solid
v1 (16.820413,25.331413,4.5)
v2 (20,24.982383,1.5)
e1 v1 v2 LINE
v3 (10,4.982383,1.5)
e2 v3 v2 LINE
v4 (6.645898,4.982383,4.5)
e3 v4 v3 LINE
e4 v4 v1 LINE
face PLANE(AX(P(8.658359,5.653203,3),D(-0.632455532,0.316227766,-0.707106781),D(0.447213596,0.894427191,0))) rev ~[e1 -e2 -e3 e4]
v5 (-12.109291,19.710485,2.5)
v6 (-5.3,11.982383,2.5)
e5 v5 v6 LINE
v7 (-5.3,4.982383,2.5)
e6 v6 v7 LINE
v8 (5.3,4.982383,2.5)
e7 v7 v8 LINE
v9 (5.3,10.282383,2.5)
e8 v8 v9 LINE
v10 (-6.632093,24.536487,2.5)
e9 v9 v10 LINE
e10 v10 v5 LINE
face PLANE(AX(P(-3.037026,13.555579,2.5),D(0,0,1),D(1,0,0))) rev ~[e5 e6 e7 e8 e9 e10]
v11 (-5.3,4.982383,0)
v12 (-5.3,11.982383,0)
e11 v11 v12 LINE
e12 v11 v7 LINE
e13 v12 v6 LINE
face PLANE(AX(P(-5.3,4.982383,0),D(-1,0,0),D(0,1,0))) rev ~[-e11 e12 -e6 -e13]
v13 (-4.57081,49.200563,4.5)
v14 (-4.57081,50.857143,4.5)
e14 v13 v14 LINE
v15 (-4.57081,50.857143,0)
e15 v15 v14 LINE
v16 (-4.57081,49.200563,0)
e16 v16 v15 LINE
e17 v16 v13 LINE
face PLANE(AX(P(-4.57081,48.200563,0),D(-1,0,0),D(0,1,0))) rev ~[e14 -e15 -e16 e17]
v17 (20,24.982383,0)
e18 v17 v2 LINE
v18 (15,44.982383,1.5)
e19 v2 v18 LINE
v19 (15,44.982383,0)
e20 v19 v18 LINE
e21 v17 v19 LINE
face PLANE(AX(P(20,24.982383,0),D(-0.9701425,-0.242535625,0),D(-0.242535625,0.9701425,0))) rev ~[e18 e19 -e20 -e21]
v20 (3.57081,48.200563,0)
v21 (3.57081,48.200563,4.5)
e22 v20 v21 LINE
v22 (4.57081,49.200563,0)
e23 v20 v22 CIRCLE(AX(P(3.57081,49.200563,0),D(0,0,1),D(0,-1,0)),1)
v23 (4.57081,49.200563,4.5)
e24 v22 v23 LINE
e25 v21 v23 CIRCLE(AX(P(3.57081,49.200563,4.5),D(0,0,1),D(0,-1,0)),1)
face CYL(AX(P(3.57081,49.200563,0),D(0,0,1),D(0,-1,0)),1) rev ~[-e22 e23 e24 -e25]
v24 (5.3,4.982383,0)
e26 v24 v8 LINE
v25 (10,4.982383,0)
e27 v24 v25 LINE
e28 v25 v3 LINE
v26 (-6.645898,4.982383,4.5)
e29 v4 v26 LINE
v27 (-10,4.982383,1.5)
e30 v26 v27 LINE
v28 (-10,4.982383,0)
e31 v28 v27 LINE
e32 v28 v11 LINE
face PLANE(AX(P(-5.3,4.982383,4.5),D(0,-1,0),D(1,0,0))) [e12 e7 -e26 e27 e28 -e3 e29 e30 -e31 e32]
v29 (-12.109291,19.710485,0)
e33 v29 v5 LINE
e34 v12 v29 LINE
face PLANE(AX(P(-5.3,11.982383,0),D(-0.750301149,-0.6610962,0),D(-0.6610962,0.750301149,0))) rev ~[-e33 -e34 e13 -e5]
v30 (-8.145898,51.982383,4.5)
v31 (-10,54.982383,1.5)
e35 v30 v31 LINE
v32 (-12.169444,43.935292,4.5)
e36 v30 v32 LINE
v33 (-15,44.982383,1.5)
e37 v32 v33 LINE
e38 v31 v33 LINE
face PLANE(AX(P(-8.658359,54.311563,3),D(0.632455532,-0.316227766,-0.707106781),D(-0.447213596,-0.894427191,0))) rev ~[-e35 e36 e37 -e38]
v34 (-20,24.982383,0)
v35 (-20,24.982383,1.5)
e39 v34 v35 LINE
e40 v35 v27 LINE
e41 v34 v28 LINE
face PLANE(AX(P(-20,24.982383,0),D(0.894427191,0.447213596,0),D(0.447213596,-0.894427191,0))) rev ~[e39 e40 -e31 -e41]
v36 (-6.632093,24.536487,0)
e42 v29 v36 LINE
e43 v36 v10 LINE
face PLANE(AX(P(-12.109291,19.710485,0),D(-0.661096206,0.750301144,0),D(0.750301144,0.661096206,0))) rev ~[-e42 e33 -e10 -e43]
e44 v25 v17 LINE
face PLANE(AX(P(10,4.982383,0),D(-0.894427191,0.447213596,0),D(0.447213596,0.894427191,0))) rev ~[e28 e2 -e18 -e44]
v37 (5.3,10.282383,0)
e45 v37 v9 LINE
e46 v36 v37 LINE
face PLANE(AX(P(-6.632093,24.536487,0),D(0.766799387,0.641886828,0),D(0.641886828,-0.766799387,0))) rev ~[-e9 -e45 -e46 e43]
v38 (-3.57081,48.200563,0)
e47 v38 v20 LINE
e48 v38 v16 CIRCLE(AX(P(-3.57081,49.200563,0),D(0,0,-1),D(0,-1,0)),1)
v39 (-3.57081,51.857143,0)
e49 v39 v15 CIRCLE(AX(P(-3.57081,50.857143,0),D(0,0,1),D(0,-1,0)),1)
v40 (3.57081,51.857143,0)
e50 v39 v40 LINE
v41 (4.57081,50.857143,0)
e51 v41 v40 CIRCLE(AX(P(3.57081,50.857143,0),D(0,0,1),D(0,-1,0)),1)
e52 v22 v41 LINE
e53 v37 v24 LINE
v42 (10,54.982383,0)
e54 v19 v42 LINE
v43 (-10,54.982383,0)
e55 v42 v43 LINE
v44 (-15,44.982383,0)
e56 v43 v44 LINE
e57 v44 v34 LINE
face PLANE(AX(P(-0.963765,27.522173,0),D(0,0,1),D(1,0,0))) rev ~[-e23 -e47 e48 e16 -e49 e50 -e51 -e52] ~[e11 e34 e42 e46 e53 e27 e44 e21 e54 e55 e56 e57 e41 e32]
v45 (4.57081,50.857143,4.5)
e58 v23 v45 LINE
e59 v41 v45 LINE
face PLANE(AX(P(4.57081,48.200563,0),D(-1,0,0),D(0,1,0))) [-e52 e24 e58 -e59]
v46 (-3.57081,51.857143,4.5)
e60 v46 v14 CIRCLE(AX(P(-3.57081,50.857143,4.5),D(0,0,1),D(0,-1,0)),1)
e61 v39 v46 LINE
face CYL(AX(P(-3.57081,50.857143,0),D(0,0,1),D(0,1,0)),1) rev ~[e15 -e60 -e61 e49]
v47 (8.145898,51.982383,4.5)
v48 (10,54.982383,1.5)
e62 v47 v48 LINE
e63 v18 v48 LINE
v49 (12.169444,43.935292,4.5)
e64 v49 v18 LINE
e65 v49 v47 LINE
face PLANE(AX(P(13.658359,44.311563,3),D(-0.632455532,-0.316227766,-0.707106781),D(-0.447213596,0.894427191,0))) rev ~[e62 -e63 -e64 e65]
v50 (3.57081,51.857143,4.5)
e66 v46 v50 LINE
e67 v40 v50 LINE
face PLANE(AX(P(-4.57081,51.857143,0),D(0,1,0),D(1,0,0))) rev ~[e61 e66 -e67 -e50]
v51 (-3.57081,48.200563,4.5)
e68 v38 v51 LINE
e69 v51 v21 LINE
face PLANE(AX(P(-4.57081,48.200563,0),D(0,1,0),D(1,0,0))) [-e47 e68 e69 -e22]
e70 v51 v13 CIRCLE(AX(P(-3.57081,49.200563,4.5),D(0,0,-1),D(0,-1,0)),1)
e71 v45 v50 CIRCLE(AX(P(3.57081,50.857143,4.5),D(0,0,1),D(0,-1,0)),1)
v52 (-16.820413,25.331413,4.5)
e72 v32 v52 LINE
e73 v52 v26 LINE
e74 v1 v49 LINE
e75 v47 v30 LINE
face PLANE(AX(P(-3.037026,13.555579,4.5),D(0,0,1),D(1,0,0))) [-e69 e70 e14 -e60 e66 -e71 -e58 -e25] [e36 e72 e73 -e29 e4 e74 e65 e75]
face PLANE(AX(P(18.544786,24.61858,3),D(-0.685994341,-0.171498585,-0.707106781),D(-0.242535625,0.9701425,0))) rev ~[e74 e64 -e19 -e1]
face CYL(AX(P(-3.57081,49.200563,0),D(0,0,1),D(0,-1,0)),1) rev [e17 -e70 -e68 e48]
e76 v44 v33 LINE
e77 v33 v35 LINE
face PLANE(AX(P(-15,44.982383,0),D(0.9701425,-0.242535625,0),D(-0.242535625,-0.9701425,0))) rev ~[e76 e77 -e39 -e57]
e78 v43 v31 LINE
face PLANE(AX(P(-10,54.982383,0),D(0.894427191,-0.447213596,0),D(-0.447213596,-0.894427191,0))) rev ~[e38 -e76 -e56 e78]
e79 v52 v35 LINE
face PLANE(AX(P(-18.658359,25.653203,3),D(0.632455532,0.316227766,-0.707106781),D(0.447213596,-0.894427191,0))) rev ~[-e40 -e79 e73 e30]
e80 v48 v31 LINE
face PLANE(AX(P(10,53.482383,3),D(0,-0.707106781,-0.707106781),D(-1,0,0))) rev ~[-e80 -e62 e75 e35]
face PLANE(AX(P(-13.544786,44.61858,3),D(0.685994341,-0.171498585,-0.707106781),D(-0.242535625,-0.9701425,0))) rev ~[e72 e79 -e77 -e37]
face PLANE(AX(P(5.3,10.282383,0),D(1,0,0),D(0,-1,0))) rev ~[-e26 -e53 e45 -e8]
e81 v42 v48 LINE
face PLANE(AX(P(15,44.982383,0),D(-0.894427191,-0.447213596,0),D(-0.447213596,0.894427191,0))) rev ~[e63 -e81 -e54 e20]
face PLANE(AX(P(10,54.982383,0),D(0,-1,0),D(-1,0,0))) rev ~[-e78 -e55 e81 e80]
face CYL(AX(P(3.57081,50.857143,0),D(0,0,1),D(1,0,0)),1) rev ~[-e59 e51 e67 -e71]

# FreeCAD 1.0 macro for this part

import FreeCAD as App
import Part
import Sketcher
Q = App.Units.Quantity


def edges_at(feature, points):
    """Names of the edges that pass closest to the given points."""
    edges = feature.Shape.Edges
    near = lambda p: min(range(len(edges)), key=lambda i: edges[i].distToShape(Part.Vertex(*p))[0])
    return sorted({f"Edge{near(p) + 1}" for p in points})


def add_polygon(sketch, points):
    """Adds a closed chain of lines whose ends are joined by coincident constraints."""
    first, n = sketch.GeometryCount, len(points)
    for a, b in zip(points, points[1:] + points[:1]):
        sketch.addGeometry(Part.LineSegment(App.Vector(*a, 0), App.Vector(*b, 0)), False)
    for i in range(n):
        sketch.addConstraint(Sketcher.Constraint("Coincident", first + i, 2, first + (i + 1) % n, 1))

doc = App.newDocument("Part")
body = doc.addObject("PartDesign::Body", "Body")

sketch1 = doc.addObject("Sketcher::SketchObject", "Sketch")
body.addObject(sketch1)
sketch1.AttachmentSupport = (doc.XY_Plane, [""])
sketch1.MapMode = "FlatFace"
add_polygon(sketch1, [(10, 54.982383), (-10, 54.982383), (-15, 44.982383), (-20, 24.982383), (-10, 4.982383), (-5.3, 4.982383), (-5.3, 11.982383), (-12.109291, 19.710485), (-6.632093, 24.536487), (5.3, 10.282383), (5.3, 4.982383), (10, 4.982383), (20, 24.982383), (15, 44.982383)])
add_polygon(sketch1, [(4.57081, 48.200563), (-4.57081, 48.200563), (-4.57081, 51.857143), (4.57081, 51.857143)])
sketch1.addConstraint([
    Sketcher.Constraint("Horizontal", 0),
    Sketcher.Constraint("Horizontal", 4),
    Sketcher.Constraint("Vertical", 5),
    Sketcher.Constraint("Vertical", 9),
    Sketcher.Constraint("Horizontal", 10),
    Sketcher.Constraint("Horizontal", 14),
    Sketcher.Constraint("Vertical", 15),
    Sketcher.Constraint("Horizontal", 16),
    Sketcher.Constraint("Vertical", 17),
    Sketcher.Constraint("Symmetric", 4, 2, 9, 2, -2),
    Sketcher.Constraint("Symmetric", 2, 2, 11, 2, -2),
    Sketcher.Constraint("Symmetric", 1, 2, 12, 2, -2),
    Sketcher.Constraint("Perpendicular", 6, 7),
    Sketcher.Constraint("Parallel", 1, 11),
    Sketcher.Constraint("Parallel", 3, 13),
    Sketcher.Constraint("Vertical", 0, 2, 3, 2),
    Sketcher.Constraint("Vertical", 10, 2, 13, 2),
    Sketcher.Constraint("DistanceX", 0, 2, 0, 1, Q("20 mm")),
    Sketcher.Constraint("DistanceY", 5, 1, 5, 2, Q("7 mm")),
    Sketcher.Constraint("DistanceX", 4, 1, 4, 2, Q("4.7 mm")),
    Sketcher.Constraint("DistanceY", 9, 2, 9, 1, Q("5.3 mm")),
    Sketcher.Constraint("DistanceX", 1, 2, -1, 1, Q("15 mm")),
    Sketcher.Constraint("DistanceX", 2, 2, -1, 1, Q("20 mm")),
    Sketcher.Constraint("DistanceY", 1, 2, 0, 2, Q("10 mm")),
    Sketcher.Constraint("DistanceY", 2, 2, 1, 2, Q("20 mm")),
    Sketcher.Constraint("Distance", 6, Q("10.3 mm")),
    Sketcher.Constraint("Distance", 7, Q("7.3 mm")),
    Sketcher.Constraint("DistanceX", 14, 2, 14, 1, Q("9.14162 mm")),
    Sketcher.Constraint("DistanceY", 15, 1, 15, 2, Q("3.65658 mm")),
    Sketcher.Constraint("DistanceY", 6, 2, 2, 2, Q("5.271898 mm")),
    Sketcher.Constraint("DistanceX", 14, 2, -1, 1, Q("4.57081 mm")),
    Sketcher.Constraint("DistanceY", 14, 2, 0, 2, Q("6.78182 mm")),
    Sketcher.Constraint("DistanceY", -1, 1, 0, 2, Q("54.982383 mm")),
])
pad1 = doc.addObject("PartDesign::Pad", "Pad")
body.addObject(pad1)
pad1.Profile = sketch1
pad1.Length = 4.5

sketch2 = doc.addObject("Sketcher::SketchObject", "Sketch001")
body.addObject(sketch2)
sketch2.AttachmentSupport = (doc.XY_Plane, [""])
sketch2.MapMode = "FlatFace"
sketch2.AttachmentOffset = App.Placement(App.Vector(0, 0, 4.5), App.Rotation())
add_polygon(sketch2, [(-5.3, 11.982383), (-5.3, 4.982383), (5.3, 4.982383), (5.3, 10.282383), (-6.632093, 24.536487), (-12.109291, 19.710485)])
sketch2.addConstraint([
    Sketcher.Constraint("Vertical", 0),
    Sketcher.Constraint("Horizontal", 1),
    Sketcher.Constraint("Vertical", 2),
    Sketcher.Constraint("Perpendicular", 4, 5),
    Sketcher.Constraint("DistanceY", 0, 2, 0, 1, Q("7 mm")),
    Sketcher.Constraint("DistanceX", 1, 1, 1, 2, Q("10.6 mm")),
    Sketcher.Constraint("DistanceY", 2, 1, 2, 2, Q("5.3 mm")),
    Sketcher.Constraint("Distance", 4, Q("7.3 mm")),
    Sketcher.Constraint("Distance", 5, Q("10.3 mm")),
    Sketcher.Constraint("DistanceX", 0, 2, -1, 1, Q("5.3 mm")),
    Sketcher.Constraint("DistanceX", 4, 2, 3, 2, Q("5.477198 mm")),
    Sketcher.Constraint("DistanceY", -1, 1, 0, 2, Q("4.982383 mm")),
])
pad2 = doc.addObject("PartDesign::Pad", "Pad001")
body.addObject(pad2)
pad2.Profile = sketch2
pad2.Length = 2
pad2.Reversed = True
doc.recompute()

chamfer = doc.addObject("PartDesign::Chamfer", "Chamfer")
body.addObject(chamfer)
chamfer.Base = (pad2, edges_at(pad2, [
    (-15, 14.982, 4.5),
    (-17.5, 34.982, 4.5),
    (0, 54.982, 4.5),
    (12.5, 49.982, 4.5),
    (17.5, 34.982, 4.5),
    (15, 14.982, 4.5),
    (-12.5, 49.982, 4.5),
]))
chamfer.Size = 3
doc.recompute()

fillet = doc.addObject("PartDesign::Fillet", "Fillet")
body.addObject(fillet)
fillet.Base = (chamfer, edges_at(chamfer, [
    (-4.571, 48.201, 2.25),
    (-4.571, 51.857, 2.25),
    (4.571, 51.857, 2.25),
    (4.571, 48.201, 2.25),
]))
fillet.Radius = 1

doc.recompute()
